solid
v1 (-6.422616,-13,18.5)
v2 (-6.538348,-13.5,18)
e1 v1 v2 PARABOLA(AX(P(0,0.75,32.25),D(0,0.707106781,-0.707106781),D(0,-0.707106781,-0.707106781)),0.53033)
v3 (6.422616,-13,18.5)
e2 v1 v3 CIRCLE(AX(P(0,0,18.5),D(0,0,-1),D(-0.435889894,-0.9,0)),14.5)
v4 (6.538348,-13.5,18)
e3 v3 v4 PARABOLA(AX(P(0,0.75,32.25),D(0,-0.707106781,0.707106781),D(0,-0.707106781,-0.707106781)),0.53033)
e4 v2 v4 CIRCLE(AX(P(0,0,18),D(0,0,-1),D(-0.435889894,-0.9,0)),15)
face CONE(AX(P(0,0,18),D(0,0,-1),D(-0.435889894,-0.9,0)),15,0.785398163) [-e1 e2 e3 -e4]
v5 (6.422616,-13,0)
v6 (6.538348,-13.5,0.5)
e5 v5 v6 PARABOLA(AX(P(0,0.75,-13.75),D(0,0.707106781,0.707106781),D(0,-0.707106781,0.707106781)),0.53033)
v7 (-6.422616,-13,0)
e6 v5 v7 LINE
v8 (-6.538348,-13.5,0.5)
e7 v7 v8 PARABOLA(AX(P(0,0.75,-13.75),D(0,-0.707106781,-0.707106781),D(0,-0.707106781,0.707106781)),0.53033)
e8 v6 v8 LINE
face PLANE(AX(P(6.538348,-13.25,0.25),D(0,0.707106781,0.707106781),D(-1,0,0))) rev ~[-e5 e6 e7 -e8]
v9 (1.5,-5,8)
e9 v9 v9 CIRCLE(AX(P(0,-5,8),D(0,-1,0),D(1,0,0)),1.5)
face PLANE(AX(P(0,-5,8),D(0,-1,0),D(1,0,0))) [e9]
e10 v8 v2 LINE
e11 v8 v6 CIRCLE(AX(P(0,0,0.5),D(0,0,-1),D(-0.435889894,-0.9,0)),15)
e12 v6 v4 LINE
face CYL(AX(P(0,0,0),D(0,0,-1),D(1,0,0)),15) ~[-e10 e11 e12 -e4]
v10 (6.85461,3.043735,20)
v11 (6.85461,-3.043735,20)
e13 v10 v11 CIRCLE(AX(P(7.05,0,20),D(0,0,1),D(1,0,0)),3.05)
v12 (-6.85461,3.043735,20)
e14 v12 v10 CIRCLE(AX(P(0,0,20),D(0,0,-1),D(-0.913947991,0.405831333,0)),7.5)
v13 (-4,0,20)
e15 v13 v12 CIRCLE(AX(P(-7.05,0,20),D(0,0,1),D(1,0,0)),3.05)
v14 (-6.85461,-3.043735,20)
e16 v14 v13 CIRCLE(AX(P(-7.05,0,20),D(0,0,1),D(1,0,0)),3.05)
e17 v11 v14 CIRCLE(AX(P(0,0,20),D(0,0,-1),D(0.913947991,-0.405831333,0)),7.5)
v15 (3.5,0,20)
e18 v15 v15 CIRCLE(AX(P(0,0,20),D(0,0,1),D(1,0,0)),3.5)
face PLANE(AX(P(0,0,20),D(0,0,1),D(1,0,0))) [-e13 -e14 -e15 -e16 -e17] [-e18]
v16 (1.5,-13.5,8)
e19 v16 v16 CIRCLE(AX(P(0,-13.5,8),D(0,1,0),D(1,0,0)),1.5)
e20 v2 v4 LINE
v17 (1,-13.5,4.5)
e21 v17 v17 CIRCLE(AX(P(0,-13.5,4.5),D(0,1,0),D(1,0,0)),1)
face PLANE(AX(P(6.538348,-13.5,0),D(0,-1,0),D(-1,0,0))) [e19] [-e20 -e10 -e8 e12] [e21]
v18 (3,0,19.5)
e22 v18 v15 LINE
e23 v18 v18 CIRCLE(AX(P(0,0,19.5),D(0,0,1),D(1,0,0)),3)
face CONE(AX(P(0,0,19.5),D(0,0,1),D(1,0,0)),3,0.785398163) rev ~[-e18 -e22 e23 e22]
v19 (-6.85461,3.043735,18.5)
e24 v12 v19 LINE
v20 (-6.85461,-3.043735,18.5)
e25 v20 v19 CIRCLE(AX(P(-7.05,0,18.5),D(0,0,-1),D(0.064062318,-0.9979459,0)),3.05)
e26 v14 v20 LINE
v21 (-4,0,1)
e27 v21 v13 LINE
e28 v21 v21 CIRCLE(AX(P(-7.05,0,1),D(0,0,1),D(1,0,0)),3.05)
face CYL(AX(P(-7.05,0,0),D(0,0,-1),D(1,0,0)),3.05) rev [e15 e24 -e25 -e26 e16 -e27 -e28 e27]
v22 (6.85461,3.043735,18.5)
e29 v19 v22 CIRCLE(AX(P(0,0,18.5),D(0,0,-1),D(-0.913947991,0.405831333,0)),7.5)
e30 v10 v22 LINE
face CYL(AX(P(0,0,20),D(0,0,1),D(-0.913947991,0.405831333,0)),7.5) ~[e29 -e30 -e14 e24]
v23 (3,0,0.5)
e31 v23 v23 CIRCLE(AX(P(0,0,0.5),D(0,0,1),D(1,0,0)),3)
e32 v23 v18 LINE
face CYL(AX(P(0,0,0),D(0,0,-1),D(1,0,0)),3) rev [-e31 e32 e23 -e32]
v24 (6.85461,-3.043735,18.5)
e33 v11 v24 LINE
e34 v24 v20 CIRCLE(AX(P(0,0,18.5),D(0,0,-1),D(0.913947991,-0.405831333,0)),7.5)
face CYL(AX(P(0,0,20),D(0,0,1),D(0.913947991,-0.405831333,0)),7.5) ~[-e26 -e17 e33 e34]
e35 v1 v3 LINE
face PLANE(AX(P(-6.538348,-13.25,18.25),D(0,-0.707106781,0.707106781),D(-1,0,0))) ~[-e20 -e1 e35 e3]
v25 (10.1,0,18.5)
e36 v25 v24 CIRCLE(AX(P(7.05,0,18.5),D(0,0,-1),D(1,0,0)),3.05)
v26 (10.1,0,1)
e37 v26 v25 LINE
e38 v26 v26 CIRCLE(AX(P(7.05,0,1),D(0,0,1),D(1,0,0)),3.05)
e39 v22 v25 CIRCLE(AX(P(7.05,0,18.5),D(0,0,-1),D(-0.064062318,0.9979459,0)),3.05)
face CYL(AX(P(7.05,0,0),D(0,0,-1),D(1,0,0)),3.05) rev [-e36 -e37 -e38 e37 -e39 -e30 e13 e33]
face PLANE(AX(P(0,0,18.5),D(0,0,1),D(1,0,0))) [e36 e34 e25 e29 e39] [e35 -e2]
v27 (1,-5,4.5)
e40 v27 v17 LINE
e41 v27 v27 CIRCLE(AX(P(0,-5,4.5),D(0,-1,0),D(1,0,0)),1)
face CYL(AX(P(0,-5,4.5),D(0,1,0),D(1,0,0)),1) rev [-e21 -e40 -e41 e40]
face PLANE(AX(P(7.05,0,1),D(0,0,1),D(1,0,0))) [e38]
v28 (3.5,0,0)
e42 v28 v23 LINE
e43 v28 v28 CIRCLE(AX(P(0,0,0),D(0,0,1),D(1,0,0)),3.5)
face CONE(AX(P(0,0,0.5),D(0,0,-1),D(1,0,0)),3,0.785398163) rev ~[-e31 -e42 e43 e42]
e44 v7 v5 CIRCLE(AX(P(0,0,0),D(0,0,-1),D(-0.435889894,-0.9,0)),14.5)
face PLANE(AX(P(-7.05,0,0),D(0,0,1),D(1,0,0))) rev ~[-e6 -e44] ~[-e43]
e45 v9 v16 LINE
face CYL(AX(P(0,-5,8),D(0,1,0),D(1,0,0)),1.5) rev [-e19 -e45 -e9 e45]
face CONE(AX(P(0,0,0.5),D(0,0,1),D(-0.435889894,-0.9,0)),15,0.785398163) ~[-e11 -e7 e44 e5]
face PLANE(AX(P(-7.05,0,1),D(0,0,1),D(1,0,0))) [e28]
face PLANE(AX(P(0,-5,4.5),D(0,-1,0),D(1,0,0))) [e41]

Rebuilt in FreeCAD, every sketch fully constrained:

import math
import FreeCAD as App
import Part
import Sketcher
from FreeCAD import Vector
Q = App.Units.Quantity


def edges_at(feature, points):
    """Names of the edges that pass closest to the given points."""
    edges = feature.Shape.Edges
    near = lambda p: min(range(len(edges)), key=lambda i: edges[i].distToShape(Part.Vertex(*p))[0])
    return sorted({f"Edge{near(p) + 1}" for p in points})

doc = App.newDocument("Part")
params = doc.addObject("Spreadsheet::Sheet", "Params")
for row, (alias, value) in enumerate([
    ("sketch1_diameter", "30 mm"),
    ("sketch1_diameter2", "6 mm"),
    ("sketch1_diameter3", "6.1 mm"),
    ("pad1_length", "20 mm"),
    ("sketch2_diameter", "6.1 mm"),
    ("pad2_length", "1 mm"),
    ("sketch3_diameter", "30 mm"),
    ("sketch3_radius", "7.5 mm"),
    ("sketch3_radius2", "3.05 mm"),
    ("pocket1_length", "1.5 mm"),
    ("sketch4_diameter", "2 mm"),
    ("sketch4_diameter2", "3 mm"),
    ("pocket2_length", "20 mm"),
    ("sketch5_radius", "15 mm"),
    ("pocket3_length", "25 mm"),
    ("chamfer_size", "0.5 mm"),
], start=1):
    params.set(f"A{row}", alias)
    params.set(f"B{row}", "=" + value)
    params.setAlias(f"B{row}", alias)

body = doc.addObject("PartDesign::Body", "Body")

sketch1 = body.newObject("Sketcher::SketchObject", "Sketch")
sketch1.AttachmentSupport = (doc.getObject("XY_Plane"), [""])
sketch1.MapMode = "FlatFace"
sketch1.addGeometry([
    Part.Circle(Vector(0, 0, 0), Vector(0, 0, 1), 15),
    Part.Circle(Vector(-7, 0, 0), Vector(0, 0, 1), 3),
    Part.Circle(Vector(0, 0, 0), Vector(0, 0, 1), 3),
    Part.Circle(Vector(7, 0, 0), Vector(0, 0, 1), 3),
], False)
sketch1.addConstraint([
    Sketcher.Constraint("Coincident", 0, 3, -1, 1),
    Sketcher.Constraint("Coincident", 2, 3, -1, 1),
    Sketcher.Constraint("Equal", 1, 3),
    Sketcher.Constraint("Symmetric", 1, 3, 3, 3, -1, 1),
    Sketcher.Constraint("PointOnObject", 1, 3, -1),
    Sketcher.Constraint("Diameter", 0, Q("30 mm")),
    Sketcher.Constraint("Diameter", 2, Q("6 mm")),
    Sketcher.Constraint("Diameter", 1, Q("6.1 mm")),
    Sketcher.Constraint("DistanceX", 1, 3, 3, 3, Q("14.1 mm")),
])
sketch1.setExpression("Constraints[5]", "Params.sketch1_diameter")
sketch1.setExpression("Constraints[6]", "Params.sketch1_diameter2")
sketch1.setExpression("Constraints[7]", "Params.sketch1_diameter3")
pad1 = body.newObject("PartDesign::Pad", "Pad")
pad1.Profile = sketch1
pad1.setExpression("Length", "Params.pad1_length")

sketch2 = body.newObject("Sketcher::SketchObject", "Sketch001")
sketch2.AttachmentSupport = (doc.getObject("XY_Plane"), [""])
sketch2.MapMode = "FlatFace"
sketch2.addGeometry([
    Part.Circle(Vector(-7, 0, 0), Vector(0, 0, 1), 3),
    Part.Circle(Vector(7, 0, 0), Vector(0, 0, 1), 3),
], False)
sketch2.addConstraint([
    Sketcher.Constraint("Equal", 0, 1),
    Sketcher.Constraint("Symmetric", 0, 3, 1, 3, -1, 1),
    Sketcher.Constraint("PointOnObject", 0, 3, -1),
    Sketcher.Constraint("Diameter", 0, Q("6.1 mm")),
    Sketcher.Constraint("DistanceX", 0, 3, 1, 3, Q("14.1 mm")),
])
sketch2.setExpression("Constraints[3]", "Params.sketch2_diameter")
pad2 = body.newObject("PartDesign::Pad", "Pad001")
pad2.Profile = sketch2
pad2.setExpression("Length", "Params.pad2_length")

sketch3 = body.newObject("Sketcher::SketchObject", "Sketch002")
sketch3.AttachmentSupport = (doc.getObject("XY_Plane"), [""])
sketch3.MapMode = "FlatFace"
sketch3.AttachmentOffset = App.Placement(Vector(0, 0, 20), App.Rotation())
sketch3.addGeometry([
    Part.Circle(Vector(0, 0, 0), Vector(0, 0, 1), 15),
    Part.ArcOfCircle(Part.Circle(Vector(-7, 0, 0), Vector(0, 0, 1), 3), math.radians(86), math.radians(274)),
    Part.ArcOfCircle(Part.Circle(Vector(0, 0, 0), Vector(0, 0, 1), 7.5), math.radians(24), math.radians(156)),
    Part.ArcOfCircle(Part.Circle(Vector(7, 0, 0), Vector(0, 0, 1), 3), math.radians(0), math.radians(94)),
    Part.ArcOfCircle(Part.Circle(Vector(7, 0, 0), Vector(0, 0, 1), 3), math.radians(-94), math.radians(0)),
    Part.ArcOfCircle(Part.Circle(Vector(0, 0, 0), Vector(0, 0, 1), 7.5), math.radians(-156), math.radians(-24)),
], False)
sketch3.addConstraint([
    Sketcher.Constraint("Coincident", 1, 1, 2, 2),
    Sketcher.Constraint("Coincident", 2, 1, 3, 2),
    Sketcher.Constraint("Tangent", 3, 1, 4, 2),
    Sketcher.Constraint("Coincident", 4, 1, 5, 2),
    Sketcher.Constraint("Coincident", 5, 1, 1, 2),
    Sketcher.Constraint("Coincident", 0, 3, -1, 1),
    Sketcher.Constraint("Coincident", 2, 3, -1, 1),
    Sketcher.Constraint("Coincident", 5, 3, -1, 1),
    Sketcher.Constraint("Equal", 1, 3),
    Sketcher.Constraint("Equal", 3, 4),
    Sketcher.Constraint("Equal", 2, 5),
    Sketcher.Constraint("Symmetric", 1, 3, 3, 3, -1, 1),
    Sketcher.Constraint("PointOnObject", 1, 3, -1),
    Sketcher.Constraint("PointOnObject", 3, 1, -1),
    Sketcher.Constraint("Diameter", 0, Q("30 mm")),
    Sketcher.Constraint("Radius", 2, Q("7.5 mm")),
    Sketcher.Constraint("Radius", 1, Q("3.05 mm")),
    Sketcher.Constraint("DistanceX", -1, 1, 3, 1, Q("10.1 mm")),
])
sketch3.setExpression("Constraints[14]", "Params.sketch3_diameter")
sketch3.setExpression("Constraints[15]", "Params.sketch3_radius")
sketch3.setExpression("Constraints[16]", "Params.sketch3_radius2")
pocket1 = body.newObject("PartDesign::Pocket", "Pocket")
pocket1.Profile = sketch3
pocket1.setExpression("Length", "Params.pocket1_length")

sketch4 = body.newObject("Sketcher::SketchObject", "Sketch003")
sketch4.AttachmentSupport = (doc.getObject("XZ_Plane"), [""])
sketch4.MapMode = "FlatFace"
sketch4.AttachmentOffset = App.Placement(Vector(0, 0, 5), App.Rotation())
sketch4.addGeometry([
    Part.Circle(Vector(0, 4.5, 0), Vector(0, 0, 1), 1),
    Part.Circle(Vector(0, 8, 0), Vector(0, 0, 1), 1.5),
], False)
sketch4.addConstraint([
    Sketcher.Constraint("PointOnObject", 0, 3, -2),
    Sketcher.Constraint("PointOnObject", 1, 3, -2),
    Sketcher.Constraint("Diameter", 0, Q("2 mm")),
    Sketcher.Constraint("Diameter", 1, Q("3 mm")),
    Sketcher.Constraint("DistanceY", -1, 1, 1, 3, Q("8 mm")),
    Sketcher.Constraint("DistanceY", -1, 1, 0, 3, Q("4.5 mm")),
])
sketch4.setExpression("Constraints[2]", "Params.sketch4_diameter")
sketch4.setExpression("Constraints[3]", "Params.sketch4_diameter2")
pocket2 = body.newObject("PartDesign::Pocket", "Pocket001")
pocket2.Profile = sketch4
pocket2.setExpression("Length", "Params.pocket2_length")
pocket2.Reversed = True

sketch5 = body.newObject("Sketcher::SketchObject", "Sketch004")
sketch5.AttachmentSupport = (doc.getObject("XY_Plane"), [""])
sketch5.MapMode = "FlatFace"
sketch5.addGeometry([
    Part.LineSegment(Vector(7, -14, 0), Vector(-7, -14, 0)),
    Part.ArcOfCircle(Part.Circle(Vector(0, 0, 0), Vector(0, 0, 1), 15), math.radians(-116), math.radians(-64)),
], False)
sketch5.addConstraint([
    Sketcher.Constraint("Coincident", 0, 1, 1, 2),
    Sketcher.Constraint("Coincident", 1, 1, 0, 2),
    Sketcher.Constraint("Horizontal", 0),
    Sketcher.Constraint("Coincident", 1, 3, -1, 1),
    Sketcher.Constraint("Radius", 1, Q("15 mm")),
    Sketcher.Constraint("DistanceY", 0, 1, -1, 1, Q("13.5 mm")),
])
sketch5.setExpression("Constraints[4]", "Params.sketch5_radius")
pocket3 = body.newObject("PartDesign::Pocket", "Pocket002")
pocket3.Profile = sketch5
pocket3.setExpression("Length", "Params.pocket3_length")
pocket3.Reversed = True
doc.recompute()

chamfer = body.newObject("PartDesign::Chamfer", "Chamfer")
chamfer.Base = (pocket3, edges_at(pocket3, [
    (0, 15, 0),
    (0, -13.5, 0),
    (-3, 0, 0),
    (0, 15, 18.5),
    (-3, 0, 20),
    (0, -13.5, 18.5),
]))
chamfer.setExpression("Size", "Params.chamfer_size")

doc.recompute()
